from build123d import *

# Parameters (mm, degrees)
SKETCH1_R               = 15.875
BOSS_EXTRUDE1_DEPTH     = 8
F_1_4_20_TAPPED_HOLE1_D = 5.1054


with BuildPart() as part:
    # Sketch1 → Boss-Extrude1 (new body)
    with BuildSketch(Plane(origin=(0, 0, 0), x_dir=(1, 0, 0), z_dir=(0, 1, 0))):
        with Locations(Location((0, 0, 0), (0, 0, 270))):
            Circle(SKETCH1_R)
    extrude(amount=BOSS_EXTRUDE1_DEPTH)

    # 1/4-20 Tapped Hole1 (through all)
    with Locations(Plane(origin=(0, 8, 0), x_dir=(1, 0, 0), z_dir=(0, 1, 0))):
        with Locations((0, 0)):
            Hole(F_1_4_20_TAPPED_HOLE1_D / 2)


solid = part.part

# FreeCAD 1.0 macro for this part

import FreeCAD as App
import Part
import Sketcher

V = App.Vector
Q = App.Units.Quantity

doc = App.newDocument("Part")
body = doc.addObject("PartDesign::Body", "Body")

# Sketch on XZ plane
sketch1 = doc.addObject("Sketcher::SketchObject", "Sketch")
body.addObject(sketch1)
sketch1.AttachmentSupport = (doc.XZ_Plane, [""])
sketch1.MapMode = "FlatFace"
sketch1.addGeometry(Part.Circle(V(0, 0, 0), V(0, 0, 1), 16), False)
sketch1.addConstraint([
    Sketcher.Constraint("Coincident", 0, 3, -1, 1),
    Sketcher.Constraint("Diameter", 0, Q("1.25 in")),
])
pad1 = doc.addObject("PartDesign::Pad", "Pad")
body.addObject(pad1)
pad1.Profile = sketch1
pad1.Length = 8
pad1.Reversed = True

# Sketch on XZ plane
sketch2 = doc.addObject("Sketcher::SketchObject", "Sketch001")
body.addObject(sketch2)
sketch2.AttachmentSupport = (doc.XZ_Plane, [""])
sketch2.MapMode = "FlatFace"
sketch2.AttachmentOffset = App.Placement(V(0, 0, -8), App.Rotation())
sketch2.addGeometry(Part.Circle(V(0, 0, 0), V(0, 0, 1), 2.6), False)
sketch2.addConstraint([
    Sketcher.Constraint("Coincident", 0, 3, -1, 1),
    Sketcher.Constraint("Diameter", 0, Q("0.201 in")),
])
doc.recompute()
hole = doc.addObject("PartDesign::Hole", "Hole")
body.addObject(hole)
hole.Profile = sketch2
hole.ThreadType = "None"
hole.Diameter = Q("0.201 in")
hole.DepthType = "ThroughAll"
hole.Reversed = True

doc.recompute()
